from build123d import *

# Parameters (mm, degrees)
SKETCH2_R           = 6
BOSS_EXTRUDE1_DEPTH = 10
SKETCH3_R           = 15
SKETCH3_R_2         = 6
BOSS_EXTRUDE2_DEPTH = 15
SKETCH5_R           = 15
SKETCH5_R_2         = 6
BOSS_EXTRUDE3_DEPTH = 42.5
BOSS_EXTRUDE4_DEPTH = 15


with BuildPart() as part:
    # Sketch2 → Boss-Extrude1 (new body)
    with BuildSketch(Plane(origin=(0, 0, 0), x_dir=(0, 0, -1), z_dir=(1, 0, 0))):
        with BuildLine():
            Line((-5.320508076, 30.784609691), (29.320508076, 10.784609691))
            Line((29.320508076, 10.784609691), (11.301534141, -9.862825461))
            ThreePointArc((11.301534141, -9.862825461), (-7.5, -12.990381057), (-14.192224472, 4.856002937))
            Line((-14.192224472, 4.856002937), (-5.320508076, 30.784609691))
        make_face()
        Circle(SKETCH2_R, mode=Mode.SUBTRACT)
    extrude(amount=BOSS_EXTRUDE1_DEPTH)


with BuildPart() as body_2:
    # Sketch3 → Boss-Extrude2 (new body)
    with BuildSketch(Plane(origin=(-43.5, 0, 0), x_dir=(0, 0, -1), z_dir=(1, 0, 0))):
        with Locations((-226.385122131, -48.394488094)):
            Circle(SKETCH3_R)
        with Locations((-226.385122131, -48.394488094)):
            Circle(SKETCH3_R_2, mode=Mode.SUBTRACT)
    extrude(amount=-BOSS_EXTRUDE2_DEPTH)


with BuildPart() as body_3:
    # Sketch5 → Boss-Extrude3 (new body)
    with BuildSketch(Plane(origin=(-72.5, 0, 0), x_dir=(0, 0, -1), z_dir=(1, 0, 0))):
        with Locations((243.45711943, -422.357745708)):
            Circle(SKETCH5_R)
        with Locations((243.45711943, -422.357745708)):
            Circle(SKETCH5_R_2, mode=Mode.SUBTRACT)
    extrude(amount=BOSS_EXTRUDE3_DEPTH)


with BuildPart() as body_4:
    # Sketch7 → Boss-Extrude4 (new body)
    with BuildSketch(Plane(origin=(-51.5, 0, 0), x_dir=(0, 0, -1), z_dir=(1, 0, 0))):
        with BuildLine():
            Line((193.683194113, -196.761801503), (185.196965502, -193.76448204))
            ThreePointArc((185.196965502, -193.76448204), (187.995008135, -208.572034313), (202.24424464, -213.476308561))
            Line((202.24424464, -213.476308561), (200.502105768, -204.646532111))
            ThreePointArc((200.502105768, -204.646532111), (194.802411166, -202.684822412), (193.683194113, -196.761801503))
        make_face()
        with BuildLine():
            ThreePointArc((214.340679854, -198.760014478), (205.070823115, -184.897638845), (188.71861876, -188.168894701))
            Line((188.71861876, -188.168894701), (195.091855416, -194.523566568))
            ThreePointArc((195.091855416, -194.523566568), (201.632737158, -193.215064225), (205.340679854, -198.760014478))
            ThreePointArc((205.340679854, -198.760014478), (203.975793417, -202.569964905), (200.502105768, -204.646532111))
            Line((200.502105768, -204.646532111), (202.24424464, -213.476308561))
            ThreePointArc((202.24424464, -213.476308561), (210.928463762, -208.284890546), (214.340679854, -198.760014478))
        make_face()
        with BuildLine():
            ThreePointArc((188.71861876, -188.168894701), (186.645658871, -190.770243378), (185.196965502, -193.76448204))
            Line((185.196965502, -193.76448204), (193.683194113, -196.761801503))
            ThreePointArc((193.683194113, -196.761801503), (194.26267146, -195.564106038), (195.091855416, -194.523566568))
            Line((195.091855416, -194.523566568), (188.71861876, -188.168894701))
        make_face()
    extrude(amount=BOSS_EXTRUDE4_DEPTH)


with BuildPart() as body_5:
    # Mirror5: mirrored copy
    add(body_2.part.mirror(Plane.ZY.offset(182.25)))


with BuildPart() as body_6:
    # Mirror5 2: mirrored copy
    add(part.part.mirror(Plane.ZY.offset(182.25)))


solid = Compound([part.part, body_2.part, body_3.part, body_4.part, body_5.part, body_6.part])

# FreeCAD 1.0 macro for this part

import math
import FreeCAD as App
import Part
import Sketcher
from FreeCAD import Vector
Q = App.Units.Quantity

doc = App.newDocument("Part")
body = doc.addObject("PartDesign::Body", "Body")

# Sketch on YZ plane
sketch1 = doc.addObject("Sketcher::SketchObject", "Sketch")
body.addObject(sketch1)
sketch1.AttachmentSupport = (doc.YZ_Plane, [""])
sketch1.MapMode = "FlatFace"
sketch1.addGeometry([
    Part.LineSegment(Vector(10.78461, -29.320508, 0), Vector(30.78461, 5.320508, 0)),  # 0
    Part.LineSegment(Vector(30.78461, 5.320508, 0), Vector(4.856003, 14.192224, 0)),  # 1
    Part.ArcOfCircle(Part.Circle(Vector(0, 0, 0), Vector(0, 0, 1), 15), math.radians(71.111136), math.radians(228.888864)),  # 2
    Part.LineSegment(Vector(-9.862825, -11.301534, 0), Vector(10.78461, -29.320508, 0)),  # 3
    Part.Circle(Vector(0, 0, 0), Vector(0, 0, 1), 6),  # 4
], False)
sketch1.addConstraint([
    Sketcher.Constraint("Coincident", 0, 2, 1, 1),
    Sketcher.Constraint("Tangent", 1, 2, 2, 1),
    Sketcher.Constraint("Tangent", 2, 2, 3, 1),
    Sketcher.Constraint("Coincident", 3, 2, 0, 1),
    Sketcher.Constraint("Coincident", 2, 3, -1, 1),
    Sketcher.Constraint("Coincident", 4, 3, -1, 1),
    Sketcher.Constraint("Equal", 1, 3),
    Sketcher.Constraint("Diameter", 4, Q("12 mm")),
    Sketcher.Constraint("Radius", 2, Q("15 mm")),
    Sketcher.Constraint("Angle", 0, Q("60 deg")),
    Sketcher.Constraint("Distance", 0, Q("40 mm")),
    Sketcher.Constraint("Distance", 1, Q("27.404379 mm")),
])
pad1 = doc.addObject("PartDesign::Pad", "Pad")
body.addObject(pad1)
pad1.Profile = sketch1
pad1.Length = 10
body2 = doc.addObject("PartDesign::Body", "Body001")

# Sketch on YZ plane
sketch2 = doc.addObject("Sketcher::SketchObject", "Sketch001")
body2.addObject(sketch2)
sketch2.AttachmentSupport = (doc.getObject("YZ_Plane001"), [""])
sketch2.MapMode = "FlatFace"
sketch2.AttachmentOffset = App.Placement(Vector(0, 0, -43.5), App.Rotation())
sketch2.addGeometry([
    Part.Circle(Vector(-48.394488, 226.385122, 0), Vector(0, 0, 1), 15),
    Part.Circle(Vector(-48.394488, 226.385122, 0), Vector(0, 0, 1), 6),
], False)
sketch2.addConstraint([
    Sketcher.Constraint("Coincident", 1, 3, 0, 3),
    Sketcher.Constraint("Diameter", 0, Q("30 mm")),
    Sketcher.Constraint("Diameter", 1, Q("12 mm")),
    Sketcher.Constraint("DistanceX", 0, 3, -1, 1, Q("48.394488 mm")),
    Sketcher.Constraint("DistanceY", -1, 1, 0, 3, Q("226.385122 mm")),
])
pad2 = doc.addObject("PartDesign::Pad", "Pad001")
body2.addObject(pad2)
pad2.Profile = sketch2
pad2.Length = 15
pad2.Reversed = True
body3 = doc.addObject("PartDesign::Body", "Body002")

# Sketch on YZ plane
sketch3 = doc.addObject("Sketcher::SketchObject", "Sketch002")
body3.addObject(sketch3)
sketch3.AttachmentSupport = (doc.getObject("YZ_Plane002"), [""])
sketch3.MapMode = "FlatFace"
sketch3.AttachmentOffset = App.Placement(Vector(0, 0, -72.5), App.Rotation())
sketch3.addGeometry([
    Part.Circle(Vector(-422.357746, -243.457119, 0), Vector(0, 0, 1), 15),
    Part.Circle(Vector(-422.357746, -243.457119, 0), Vector(0, 0, 1), 6),
], False)
sketch3.addConstraint([
    Sketcher.Constraint("Coincident", 1, 3, 0, 3),
    Sketcher.Constraint("Diameter", 0, Q("30 mm")),
    Sketcher.Constraint("Diameter", 1, Q("12 mm")),
    Sketcher.Constraint("DistanceY", 0, 3, -1, 1, Q("243.457119 mm")),
    Sketcher.Constraint("DistanceX", 0, 3, -1, 1, Q("422.357746 mm")),
])
pad3 = doc.addObject("PartDesign::Pad", "Pad002")
body3.addObject(pad3)
pad3.Profile = sketch3
pad3.Length = 42.5
body4 = doc.addObject("PartDesign::Body", "Body003")

# Sketch on YZ plane
sketch4 = doc.addObject("Sketcher::SketchObject", "Sketch003")
body4.addObject(sketch4)
sketch4.AttachmentSupport = (doc.getObject("YZ_Plane003"), [""])
sketch4.MapMode = "FlatFace"
sketch4.AttachmentOffset = App.Placement(Vector(0, 0, -51.5), App.Rotation())
sketch4.addGeometry([
    Part.ArcOfCircle(Part.Circle(Vector(-198.760014, -199.34068, 0), Vector(0, 0, 1), 15), math.radians(70.546878), math.radians(191.161257)),  # 0
    Part.ArcOfCircle(Part.Circle(Vector(-198.760014, -199.34068, 0), Vector(0, 0, 1), 15), math.radians(-168.838743), math.radians(-90)),  # 1
    Part.ArcOfCircle(Part.Circle(Vector(-198.760014, -199.34068, 0), Vector(0, 0, 1), 15), math.radians(-90), math.radians(45.083571)),  # 2
    Part.ArcOfCircle(Part.Circle(Vector(-198.760014, -199.34068, 0), Vector(0, 0, 1), 15), math.radians(45.083571), math.radians(70.546878)),  # 3
    Part.ArcOfCircle(Part.Circle(Vector(-198.760014, -199.34068, 0), Vector(0, 0, 1), 6), math.radians(-90), math.radians(45.083571)),  # 4
    Part.ArcOfCircle(Part.Circle(Vector(-198.760014, -199.34068, 0), Vector(0, 0, 1), 6), math.radians(-168.838743), math.radians(-90)),  # 5
    Part.ArcOfCircle(Part.Circle(Vector(-198.760014, -199.34068, 0), Vector(0, 0, 1), 6), math.radians(70.546878), math.radians(191.161257)),  # 6
    Part.ArcOfCircle(Part.Circle(Vector(-198.760014, -199.34068, 0), Vector(0, 0, 1), 6), math.radians(45.083571), math.radians(70.546878)),  # 7
], False)
sketch4.addConstraint([
    Sketcher.Constraint("Tangent", 0, 2, 1, 1),
    Sketcher.Constraint("Tangent", 1, 2, 2, 1),
    Sketcher.Constraint("Tangent", 2, 2, 3, 1),
    Sketcher.Constraint("Tangent", 3, 2, 0, 1),
    Sketcher.Constraint("Tangent", 4, 1, 5, 2),
    Sketcher.Constraint("Tangent", 5, 1, 6, 2),
    Sketcher.Constraint("Tangent", 6, 1, 7, 2),
    Sketcher.Constraint("Tangent", 7, 1, 4, 2),
    Sketcher.Constraint("Coincident", 4, 3, 0, 3),
    Sketcher.Constraint("Equal", 0, 1),
    Sketcher.Constraint("Equal", 4, 5),
    Sketcher.Constraint("Vertical", 7, 3, 1, 2),
    Sketcher.Constraint("Vertical", 1, 2, 4, 1),
    Sketcher.Constraint("Radius", 0, Q("15 mm")),
    Sketcher.Constraint("Radius", 4, Q("6 mm")),
    Sketcher.Constraint("DistanceX", 6, 1, -1, 1, Q("196.761802 mm")),
    Sketcher.Constraint("DistanceY", 0, 3, -1, 1, Q("199.34068 mm")),
    Sketcher.Constraint("DistanceX", 0, 2, -1, 1, Q("213.476309 mm")),
    Sketcher.Constraint("DistanceY", 2, 2, -1, 1, Q("188.718619 mm")),
    Sketcher.Constraint("DistanceY", 7, 1, 6, 1, Q("1.408661 mm")),
    Sketcher.Constraint("DistanceX", 0, 3, -1, 1, Q("198.760014 mm")),
    Sketcher.Constraint("DistanceX", 3, 2, -1, 1, Q("193.764482 mm")),
    Sketcher.Constraint("DistanceX", 5, 1, -1, 1, Q("204.646532 mm")),
])
pad4 = doc.addObject("PartDesign::Pad", "Pad003")
body4.addObject(pad4)
pad4.Profile = sketch4
pad4.Length = 15
body5 = doc.addObject("PartDesign::Body", "Body004")
doc.recompute()

mirroring = doc.addObject("Part::Mirroring", "Mirroring")
mirroring.Source = body2
mirroring.Base = Vector(-182.25, 0, 0)
mirroring.Normal = Vector(-1, 0, 0)
body5.BaseFeature = mirroring
doc.recompute()
body6 = doc.addObject("PartDesign::Body", "Body005")
doc.recompute()

mirroring2 = doc.addObject("Part::Mirroring", "Mirroring001")
mirroring2.Source = body
mirroring2.Base = Vector(-182.25, 0, 0)
mirroring2.Normal = Vector(-1, 0, 0)
body6.BaseFeature = mirroring2
doc.recompute()
mirroring.Visibility = False
mirroring2.Visibility = False

doc.recompute()
